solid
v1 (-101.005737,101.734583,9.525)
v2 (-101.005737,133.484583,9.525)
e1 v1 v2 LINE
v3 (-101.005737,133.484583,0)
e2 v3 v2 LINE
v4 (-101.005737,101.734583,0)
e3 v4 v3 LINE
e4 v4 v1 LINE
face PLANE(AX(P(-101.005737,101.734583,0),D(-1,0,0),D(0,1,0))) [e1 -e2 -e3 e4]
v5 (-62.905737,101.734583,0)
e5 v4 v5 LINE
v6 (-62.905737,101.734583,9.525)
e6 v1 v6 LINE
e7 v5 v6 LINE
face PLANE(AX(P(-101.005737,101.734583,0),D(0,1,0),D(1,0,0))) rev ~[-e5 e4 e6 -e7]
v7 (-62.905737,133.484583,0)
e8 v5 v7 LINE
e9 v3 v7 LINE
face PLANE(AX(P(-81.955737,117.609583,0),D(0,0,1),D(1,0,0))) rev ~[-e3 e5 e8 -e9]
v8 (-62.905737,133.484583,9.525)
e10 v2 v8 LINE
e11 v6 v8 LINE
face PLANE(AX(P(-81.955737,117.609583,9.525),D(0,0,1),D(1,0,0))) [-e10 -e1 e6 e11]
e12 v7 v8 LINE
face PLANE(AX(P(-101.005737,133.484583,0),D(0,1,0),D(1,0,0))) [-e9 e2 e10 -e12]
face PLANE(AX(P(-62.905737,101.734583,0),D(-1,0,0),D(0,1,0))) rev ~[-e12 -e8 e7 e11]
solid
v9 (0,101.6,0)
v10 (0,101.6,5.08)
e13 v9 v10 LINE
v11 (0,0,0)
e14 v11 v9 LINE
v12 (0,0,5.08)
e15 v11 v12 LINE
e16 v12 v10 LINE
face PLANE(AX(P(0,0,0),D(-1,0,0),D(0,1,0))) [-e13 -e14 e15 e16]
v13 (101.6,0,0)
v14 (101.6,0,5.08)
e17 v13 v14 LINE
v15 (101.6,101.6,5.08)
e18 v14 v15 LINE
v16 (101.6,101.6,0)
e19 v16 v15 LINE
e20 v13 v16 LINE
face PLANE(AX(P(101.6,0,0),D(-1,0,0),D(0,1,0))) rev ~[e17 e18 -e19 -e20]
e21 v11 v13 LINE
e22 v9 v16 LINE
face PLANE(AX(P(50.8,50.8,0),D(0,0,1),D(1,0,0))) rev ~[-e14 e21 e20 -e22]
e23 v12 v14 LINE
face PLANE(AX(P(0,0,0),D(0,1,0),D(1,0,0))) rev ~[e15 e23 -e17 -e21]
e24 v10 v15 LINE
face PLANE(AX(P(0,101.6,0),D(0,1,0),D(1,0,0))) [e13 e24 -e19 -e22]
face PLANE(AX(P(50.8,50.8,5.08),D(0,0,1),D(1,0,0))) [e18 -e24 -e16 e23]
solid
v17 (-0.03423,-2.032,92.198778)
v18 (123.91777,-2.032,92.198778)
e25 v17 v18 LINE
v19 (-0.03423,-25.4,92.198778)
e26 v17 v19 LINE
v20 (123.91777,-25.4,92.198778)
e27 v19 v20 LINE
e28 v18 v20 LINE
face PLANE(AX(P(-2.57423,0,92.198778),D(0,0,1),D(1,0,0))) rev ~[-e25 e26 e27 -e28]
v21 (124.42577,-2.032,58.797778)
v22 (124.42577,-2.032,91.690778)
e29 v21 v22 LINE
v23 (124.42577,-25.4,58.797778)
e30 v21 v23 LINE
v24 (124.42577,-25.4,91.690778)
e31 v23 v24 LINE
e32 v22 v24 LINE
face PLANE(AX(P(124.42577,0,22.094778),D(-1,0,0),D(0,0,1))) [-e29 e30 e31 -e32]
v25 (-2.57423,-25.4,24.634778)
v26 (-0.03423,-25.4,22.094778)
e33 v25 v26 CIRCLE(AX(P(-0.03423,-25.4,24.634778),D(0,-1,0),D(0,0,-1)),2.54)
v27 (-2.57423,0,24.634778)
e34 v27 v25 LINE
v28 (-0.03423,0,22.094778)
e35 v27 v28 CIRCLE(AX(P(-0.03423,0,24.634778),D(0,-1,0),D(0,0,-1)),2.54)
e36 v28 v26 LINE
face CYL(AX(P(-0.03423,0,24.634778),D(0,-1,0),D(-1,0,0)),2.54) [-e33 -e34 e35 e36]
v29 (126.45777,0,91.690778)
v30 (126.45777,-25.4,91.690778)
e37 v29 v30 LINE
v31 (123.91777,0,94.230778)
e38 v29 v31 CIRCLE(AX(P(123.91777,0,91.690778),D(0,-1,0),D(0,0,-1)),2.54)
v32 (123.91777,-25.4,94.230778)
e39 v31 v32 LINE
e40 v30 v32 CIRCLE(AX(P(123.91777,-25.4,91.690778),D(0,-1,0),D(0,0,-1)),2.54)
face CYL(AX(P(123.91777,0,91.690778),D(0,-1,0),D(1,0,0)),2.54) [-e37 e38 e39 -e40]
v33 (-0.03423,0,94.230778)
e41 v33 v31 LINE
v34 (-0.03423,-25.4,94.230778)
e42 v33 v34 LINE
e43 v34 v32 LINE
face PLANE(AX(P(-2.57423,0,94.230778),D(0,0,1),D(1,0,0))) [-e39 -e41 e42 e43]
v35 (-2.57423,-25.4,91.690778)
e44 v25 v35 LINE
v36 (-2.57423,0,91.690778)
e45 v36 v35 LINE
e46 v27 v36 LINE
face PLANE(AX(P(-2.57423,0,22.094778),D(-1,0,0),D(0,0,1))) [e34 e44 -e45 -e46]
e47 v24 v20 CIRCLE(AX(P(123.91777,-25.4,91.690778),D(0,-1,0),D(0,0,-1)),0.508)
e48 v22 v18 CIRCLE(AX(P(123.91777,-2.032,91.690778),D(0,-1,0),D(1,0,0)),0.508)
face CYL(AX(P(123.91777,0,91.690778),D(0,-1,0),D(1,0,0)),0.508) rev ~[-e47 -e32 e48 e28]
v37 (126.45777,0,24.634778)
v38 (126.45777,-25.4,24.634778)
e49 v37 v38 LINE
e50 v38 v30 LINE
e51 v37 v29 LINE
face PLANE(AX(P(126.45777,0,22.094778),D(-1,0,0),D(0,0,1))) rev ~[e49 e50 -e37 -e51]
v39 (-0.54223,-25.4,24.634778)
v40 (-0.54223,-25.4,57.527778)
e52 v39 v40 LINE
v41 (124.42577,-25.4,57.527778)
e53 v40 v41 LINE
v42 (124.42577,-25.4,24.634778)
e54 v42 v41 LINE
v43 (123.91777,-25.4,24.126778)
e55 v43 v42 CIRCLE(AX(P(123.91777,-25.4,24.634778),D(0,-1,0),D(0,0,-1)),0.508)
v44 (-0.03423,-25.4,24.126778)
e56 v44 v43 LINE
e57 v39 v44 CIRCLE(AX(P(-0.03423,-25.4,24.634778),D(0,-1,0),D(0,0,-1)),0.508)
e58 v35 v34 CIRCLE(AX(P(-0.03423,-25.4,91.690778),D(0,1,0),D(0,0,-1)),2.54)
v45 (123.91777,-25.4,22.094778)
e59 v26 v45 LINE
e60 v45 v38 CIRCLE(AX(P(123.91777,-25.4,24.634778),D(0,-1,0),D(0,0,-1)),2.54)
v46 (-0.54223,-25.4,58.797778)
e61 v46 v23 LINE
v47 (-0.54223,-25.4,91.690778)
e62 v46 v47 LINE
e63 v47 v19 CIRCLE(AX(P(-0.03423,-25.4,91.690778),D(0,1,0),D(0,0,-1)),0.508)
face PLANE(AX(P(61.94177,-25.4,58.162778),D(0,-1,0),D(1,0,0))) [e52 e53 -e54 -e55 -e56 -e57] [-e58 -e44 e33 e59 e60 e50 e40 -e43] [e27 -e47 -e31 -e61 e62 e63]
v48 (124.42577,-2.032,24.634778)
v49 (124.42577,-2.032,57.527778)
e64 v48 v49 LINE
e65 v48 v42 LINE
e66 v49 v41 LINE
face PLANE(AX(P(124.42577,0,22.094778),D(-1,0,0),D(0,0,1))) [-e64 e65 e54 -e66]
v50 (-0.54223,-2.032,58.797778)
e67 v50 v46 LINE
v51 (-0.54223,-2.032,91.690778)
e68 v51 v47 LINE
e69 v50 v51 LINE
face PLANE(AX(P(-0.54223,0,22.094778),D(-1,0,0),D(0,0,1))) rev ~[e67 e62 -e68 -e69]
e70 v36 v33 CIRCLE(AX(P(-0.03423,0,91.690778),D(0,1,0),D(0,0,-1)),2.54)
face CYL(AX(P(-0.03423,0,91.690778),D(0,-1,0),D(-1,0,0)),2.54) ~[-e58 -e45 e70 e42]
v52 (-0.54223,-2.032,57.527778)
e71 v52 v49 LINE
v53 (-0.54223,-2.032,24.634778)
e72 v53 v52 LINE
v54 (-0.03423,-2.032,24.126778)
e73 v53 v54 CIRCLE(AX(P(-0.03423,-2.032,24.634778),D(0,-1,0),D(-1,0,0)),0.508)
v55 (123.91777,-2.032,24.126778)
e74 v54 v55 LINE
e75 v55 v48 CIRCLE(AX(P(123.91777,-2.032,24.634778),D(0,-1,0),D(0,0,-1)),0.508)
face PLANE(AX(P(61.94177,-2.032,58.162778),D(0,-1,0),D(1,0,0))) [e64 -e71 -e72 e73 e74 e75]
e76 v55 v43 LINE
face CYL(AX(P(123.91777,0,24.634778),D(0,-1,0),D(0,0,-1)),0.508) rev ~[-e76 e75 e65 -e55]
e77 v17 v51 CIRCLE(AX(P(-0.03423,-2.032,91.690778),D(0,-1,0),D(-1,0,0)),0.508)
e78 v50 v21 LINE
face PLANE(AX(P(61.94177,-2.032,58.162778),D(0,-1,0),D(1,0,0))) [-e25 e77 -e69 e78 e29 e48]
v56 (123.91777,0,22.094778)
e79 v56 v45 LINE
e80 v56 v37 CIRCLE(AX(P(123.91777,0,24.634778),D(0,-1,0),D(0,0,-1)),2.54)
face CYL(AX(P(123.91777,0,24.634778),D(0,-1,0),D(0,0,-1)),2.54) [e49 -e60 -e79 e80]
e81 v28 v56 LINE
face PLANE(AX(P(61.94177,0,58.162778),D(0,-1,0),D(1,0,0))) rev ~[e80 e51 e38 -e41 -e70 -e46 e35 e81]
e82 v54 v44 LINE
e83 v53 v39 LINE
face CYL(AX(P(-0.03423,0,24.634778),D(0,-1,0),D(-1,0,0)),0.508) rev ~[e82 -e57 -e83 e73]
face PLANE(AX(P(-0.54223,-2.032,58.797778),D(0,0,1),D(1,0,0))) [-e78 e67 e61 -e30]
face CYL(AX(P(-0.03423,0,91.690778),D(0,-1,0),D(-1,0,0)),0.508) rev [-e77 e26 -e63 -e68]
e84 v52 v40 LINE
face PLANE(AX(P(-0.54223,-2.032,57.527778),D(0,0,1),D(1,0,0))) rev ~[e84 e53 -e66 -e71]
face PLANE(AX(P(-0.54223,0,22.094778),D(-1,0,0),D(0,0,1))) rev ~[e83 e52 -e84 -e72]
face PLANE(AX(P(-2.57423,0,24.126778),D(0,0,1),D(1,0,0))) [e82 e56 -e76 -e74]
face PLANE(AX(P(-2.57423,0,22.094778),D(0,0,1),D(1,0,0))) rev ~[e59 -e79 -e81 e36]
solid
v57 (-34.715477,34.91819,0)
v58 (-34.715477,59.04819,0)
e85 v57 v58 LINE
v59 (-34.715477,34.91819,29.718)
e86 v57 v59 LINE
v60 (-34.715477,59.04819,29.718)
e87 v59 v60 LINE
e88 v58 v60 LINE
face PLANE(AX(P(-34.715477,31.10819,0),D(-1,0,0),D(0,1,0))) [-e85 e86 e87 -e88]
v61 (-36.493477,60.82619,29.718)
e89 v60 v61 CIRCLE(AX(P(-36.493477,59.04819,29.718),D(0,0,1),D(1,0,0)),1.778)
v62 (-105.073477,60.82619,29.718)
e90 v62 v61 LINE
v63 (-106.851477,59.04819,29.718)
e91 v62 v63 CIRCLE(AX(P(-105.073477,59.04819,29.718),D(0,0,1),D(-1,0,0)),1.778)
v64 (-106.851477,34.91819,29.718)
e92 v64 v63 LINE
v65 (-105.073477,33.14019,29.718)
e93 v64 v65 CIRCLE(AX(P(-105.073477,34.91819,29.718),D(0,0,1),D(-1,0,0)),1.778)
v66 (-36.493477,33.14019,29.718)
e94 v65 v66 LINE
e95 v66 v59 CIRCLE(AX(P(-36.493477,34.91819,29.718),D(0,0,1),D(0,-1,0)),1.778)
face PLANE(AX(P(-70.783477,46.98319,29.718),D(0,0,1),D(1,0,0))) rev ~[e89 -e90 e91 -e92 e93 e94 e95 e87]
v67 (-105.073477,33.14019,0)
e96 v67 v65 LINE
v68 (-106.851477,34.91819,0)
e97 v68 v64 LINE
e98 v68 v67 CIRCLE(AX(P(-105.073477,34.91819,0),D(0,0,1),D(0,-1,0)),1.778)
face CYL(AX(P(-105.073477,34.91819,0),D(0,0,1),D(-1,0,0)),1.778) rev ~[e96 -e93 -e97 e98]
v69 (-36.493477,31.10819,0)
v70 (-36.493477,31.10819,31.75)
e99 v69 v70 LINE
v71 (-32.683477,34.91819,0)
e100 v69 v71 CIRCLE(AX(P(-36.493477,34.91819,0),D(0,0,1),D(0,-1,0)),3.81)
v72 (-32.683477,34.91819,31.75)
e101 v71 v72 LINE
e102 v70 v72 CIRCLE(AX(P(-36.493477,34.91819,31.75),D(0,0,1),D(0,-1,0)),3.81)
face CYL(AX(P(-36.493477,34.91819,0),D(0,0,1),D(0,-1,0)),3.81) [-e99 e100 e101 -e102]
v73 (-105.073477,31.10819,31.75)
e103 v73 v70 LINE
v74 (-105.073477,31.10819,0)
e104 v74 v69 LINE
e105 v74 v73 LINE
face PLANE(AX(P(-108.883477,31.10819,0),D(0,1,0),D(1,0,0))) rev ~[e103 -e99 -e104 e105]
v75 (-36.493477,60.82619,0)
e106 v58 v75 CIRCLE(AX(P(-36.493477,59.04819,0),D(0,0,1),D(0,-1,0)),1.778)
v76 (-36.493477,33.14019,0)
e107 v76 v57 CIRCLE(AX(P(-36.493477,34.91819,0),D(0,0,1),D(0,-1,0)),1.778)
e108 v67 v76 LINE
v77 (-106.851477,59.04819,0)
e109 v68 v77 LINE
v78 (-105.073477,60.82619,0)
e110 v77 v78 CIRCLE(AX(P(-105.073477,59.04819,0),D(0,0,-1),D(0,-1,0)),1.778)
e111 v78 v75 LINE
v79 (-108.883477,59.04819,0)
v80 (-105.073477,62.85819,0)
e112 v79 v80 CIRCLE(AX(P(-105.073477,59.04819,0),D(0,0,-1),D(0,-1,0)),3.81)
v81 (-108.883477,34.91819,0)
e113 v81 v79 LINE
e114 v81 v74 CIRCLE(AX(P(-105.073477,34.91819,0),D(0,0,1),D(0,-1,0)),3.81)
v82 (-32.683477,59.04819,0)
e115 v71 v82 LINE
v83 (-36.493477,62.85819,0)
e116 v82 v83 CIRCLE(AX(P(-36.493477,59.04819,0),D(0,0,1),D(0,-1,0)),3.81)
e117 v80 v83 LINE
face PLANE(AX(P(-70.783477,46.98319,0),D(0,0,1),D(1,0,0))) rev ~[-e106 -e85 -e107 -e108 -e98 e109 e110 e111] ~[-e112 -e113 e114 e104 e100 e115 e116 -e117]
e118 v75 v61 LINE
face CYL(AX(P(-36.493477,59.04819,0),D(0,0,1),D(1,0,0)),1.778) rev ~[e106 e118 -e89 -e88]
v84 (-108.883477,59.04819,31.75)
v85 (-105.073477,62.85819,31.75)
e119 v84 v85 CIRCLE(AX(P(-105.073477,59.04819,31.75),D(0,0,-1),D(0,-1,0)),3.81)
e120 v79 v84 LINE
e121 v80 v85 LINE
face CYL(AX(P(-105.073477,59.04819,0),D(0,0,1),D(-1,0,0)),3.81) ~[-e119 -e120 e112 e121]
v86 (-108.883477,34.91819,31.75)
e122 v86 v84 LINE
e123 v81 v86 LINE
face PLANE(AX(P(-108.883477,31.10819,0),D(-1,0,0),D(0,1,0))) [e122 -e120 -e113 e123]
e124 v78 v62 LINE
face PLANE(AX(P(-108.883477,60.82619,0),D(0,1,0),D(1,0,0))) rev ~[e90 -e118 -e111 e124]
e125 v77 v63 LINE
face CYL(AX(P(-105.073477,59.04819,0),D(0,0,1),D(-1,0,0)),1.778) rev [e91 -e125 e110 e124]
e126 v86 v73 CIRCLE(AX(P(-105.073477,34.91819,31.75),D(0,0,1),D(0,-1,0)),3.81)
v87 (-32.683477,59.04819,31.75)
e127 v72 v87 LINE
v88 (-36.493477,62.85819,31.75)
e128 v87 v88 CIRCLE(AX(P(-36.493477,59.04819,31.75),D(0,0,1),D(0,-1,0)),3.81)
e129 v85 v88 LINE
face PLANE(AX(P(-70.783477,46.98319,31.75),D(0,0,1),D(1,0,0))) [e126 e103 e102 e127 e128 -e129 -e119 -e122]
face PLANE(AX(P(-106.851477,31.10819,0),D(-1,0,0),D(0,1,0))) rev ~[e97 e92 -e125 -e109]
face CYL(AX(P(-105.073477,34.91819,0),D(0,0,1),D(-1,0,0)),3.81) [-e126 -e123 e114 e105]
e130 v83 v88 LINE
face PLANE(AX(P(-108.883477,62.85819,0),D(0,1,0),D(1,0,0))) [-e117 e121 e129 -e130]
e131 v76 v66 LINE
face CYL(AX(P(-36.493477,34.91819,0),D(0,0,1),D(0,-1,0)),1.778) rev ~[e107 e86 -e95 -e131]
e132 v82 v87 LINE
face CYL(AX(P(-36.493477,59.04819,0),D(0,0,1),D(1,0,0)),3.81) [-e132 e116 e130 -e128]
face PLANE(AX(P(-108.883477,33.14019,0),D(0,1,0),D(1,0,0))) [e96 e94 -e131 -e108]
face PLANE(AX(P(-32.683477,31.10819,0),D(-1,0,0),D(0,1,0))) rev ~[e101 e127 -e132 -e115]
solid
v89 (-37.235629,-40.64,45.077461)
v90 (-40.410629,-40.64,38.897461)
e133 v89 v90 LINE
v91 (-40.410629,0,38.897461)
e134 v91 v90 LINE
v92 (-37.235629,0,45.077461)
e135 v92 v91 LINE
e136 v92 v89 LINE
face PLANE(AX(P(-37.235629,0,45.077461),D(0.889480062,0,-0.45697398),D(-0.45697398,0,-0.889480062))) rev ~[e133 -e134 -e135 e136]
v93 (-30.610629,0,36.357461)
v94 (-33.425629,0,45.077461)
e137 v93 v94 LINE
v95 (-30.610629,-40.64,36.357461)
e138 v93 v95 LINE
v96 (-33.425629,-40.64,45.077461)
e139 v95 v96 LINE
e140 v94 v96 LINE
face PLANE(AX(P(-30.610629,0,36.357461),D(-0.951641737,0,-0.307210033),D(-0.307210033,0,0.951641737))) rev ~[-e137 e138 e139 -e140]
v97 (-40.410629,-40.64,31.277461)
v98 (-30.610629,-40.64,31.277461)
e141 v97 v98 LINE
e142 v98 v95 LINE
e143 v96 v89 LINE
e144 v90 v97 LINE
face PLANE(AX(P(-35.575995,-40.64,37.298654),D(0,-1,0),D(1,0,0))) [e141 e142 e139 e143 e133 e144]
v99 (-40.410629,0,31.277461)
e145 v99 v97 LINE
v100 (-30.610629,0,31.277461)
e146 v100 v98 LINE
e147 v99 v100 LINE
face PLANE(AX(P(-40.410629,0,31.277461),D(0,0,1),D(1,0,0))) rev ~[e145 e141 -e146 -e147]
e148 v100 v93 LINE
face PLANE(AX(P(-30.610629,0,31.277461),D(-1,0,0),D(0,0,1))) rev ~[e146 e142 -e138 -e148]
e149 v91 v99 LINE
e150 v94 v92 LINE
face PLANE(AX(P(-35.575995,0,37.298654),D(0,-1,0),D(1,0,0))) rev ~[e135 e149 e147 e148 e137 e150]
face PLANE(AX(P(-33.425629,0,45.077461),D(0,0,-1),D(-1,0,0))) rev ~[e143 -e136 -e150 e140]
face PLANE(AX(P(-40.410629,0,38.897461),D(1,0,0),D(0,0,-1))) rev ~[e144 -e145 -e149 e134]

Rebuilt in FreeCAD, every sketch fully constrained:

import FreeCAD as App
import Part
import Sketcher

V = App.Vector
Q = App.Units.Quantity


def edges_at(feature, points):
    """Names of the edges that pass closest to the given points."""
    edges = feature.Shape.Edges
    near = lambda p: min(range(len(edges)), key=lambda i: edges[i].distToShape(Part.Vertex(*p))[0])
    return sorted({f"Edge{near(p) + 1}" for p in points})


def faces_at(feature, points):
    """Names of the faces that lie closest to the given points."""
    faces = feature.Shape.Faces
    near = lambda p: min(range(len(faces)), key=lambda i: faces[i].distToShape(Part.Vertex(*p))[0])
    return sorted({f"Face{near(p) + 1}" for p in points})


def add_polygon(sketch, points):
    """Adds a closed chain of lines whose ends are joined by coincident constraints."""
    first, n = sketch.GeometryCount, len(points)
    for a, b in zip(points, points[1:] + points[:1]):
        sketch.addGeometry(Part.LineSegment(App.Vector(*a, 0), App.Vector(*b, 0)), False)
    for i in range(n):
        sketch.addConstraint(Sketcher.Constraint("Coincident", first + i, 2, first + (i + 1) % n, 1))

doc = App.newDocument("Part")
body = doc.addObject("PartDesign::Body", "Body")

# Sketch on XY plane
sketch1 = body.newObject("Sketcher::SketchObject", "Sketch")
sketch1.AttachmentSupport = (doc.getObject("XY_Plane"), [""])
sketch1.MapMode = "FlatFace"
add_polygon(sketch1, [(0, 102), (0, 0), (102, 0), (102, 102)])  # lines 0-3
sketch1.addConstraint([
    Sketcher.Constraint("Vertical", 0),
    Sketcher.Constraint("Horizontal", 1),
    Sketcher.Constraint("Vertical", 2),
    Sketcher.Constraint("Horizontal", 3),
    Sketcher.Constraint("Coincident", 0, 2, -1, 1),
    Sketcher.Constraint("Equal", 3, 0),
    Sketcher.Constraint("DistanceX", 1, 1, 1, 2, Q("4 in")),
])
pad1 = body.newObject("PartDesign::Pad", "Pad")
pad1.Profile = sketch1
pad1.Length = Q("0.2 in")
body2 = doc.addObject("PartDesign::Body", "Body001")

# Sketch on XZ plane
sketch2 = body2.newObject("Sketcher::SketchObject", "Sketch001")
sketch2.AttachmentSupport = (doc.getObject("XZ_Plane001"), [""])
sketch2.MapMode = "FlatFace"
add_polygon(sketch2, [(-40.4, 38.9), (-40.4, 31.3), (-30.6, 31.3), (-30.6, 36.4), (-33.4, 45.1), (-37.2, 45.1)])  # lines 0-5
sketch2.addConstraint([
    Sketcher.Constraint("Vertical", 0),
    Sketcher.Constraint("Horizontal", 1),
    Sketcher.Constraint("Vertical", 2),
    Sketcher.Constraint("Horizontal", 4),
    Sketcher.Constraint("DistanceY", 0, 2, 0, 1, Q("0.3 in")),
    Sketcher.Constraint("DistanceY", 2, 1, 2, 2, Q("0.2 in")),
    Sketcher.Constraint("DistanceX", 4, 2, 4, 1, Q("0.15 in")),
    Sketcher.Constraint("DistanceX", 0, 2, 3, 2, Q("0.275 in")),
    Sketcher.Constraint("DistanceX", 1, 1, 1, 2, Q("9.8 mm")),
    Sketcher.Constraint("DistanceY", 2, 2, 3, 2, Q("8.72 mm")),
    Sketcher.Constraint("DistanceX", 0, 2, -1, 1, Q("40.410629 mm")),
    Sketcher.Constraint("DistanceY", -1, 1, 0, 2, Q("31.277461 mm")),
])
pad2 = body2.newObject("PartDesign::Pad", "Pad001")
pad2.Profile = sketch2
pad2.Length = Q("1.6 in")
body3 = doc.addObject("PartDesign::Body", "Body002")

# Sketch on XZ plane
sketch3 = body3.newObject("Sketcher::SketchObject", "Sketch002")
sketch3.AttachmentSupport = (doc.getObject("XZ_Plane002"), [""])
sketch3.MapMode = "FlatFace"
add_polygon(sketch3, [(-3, 94), (-3, 22), (126, 22), (126, 94)])  # lines 0-3
sketch3.addConstraint([
    Sketcher.Constraint("Vertical", 0),
    Sketcher.Constraint("Horizontal", 1),
    Sketcher.Constraint("Vertical", 2),
    Sketcher.Constraint("Horizontal", 3),
    Sketcher.Constraint("DistanceX", 1, 1, 1, 2, Q("5.08 in")),
    Sketcher.Constraint("DistanceY", 0, 2, 0, 1, Q("2.84 in")),
    Sketcher.Constraint("DistanceX", 0, 2, -1, 1, Q("2.57423 mm")),
    Sketcher.Constraint("DistanceY", -1, 1, 0, 2, Q("22.094778 mm")),
])
pad3 = body3.newObject("PartDesign::Pad", "Pad002")
pad3.Profile = sketch3
pad3.Length = Q("1 in")
doc.recompute()

fillet = body3.newObject("PartDesign::Fillet", "Fillet")
fillet.Base = (pad3, edges_at(pad3, [
    (-2.574, -12.7, 22.095),
    (-2.574, -12.7, 94.231),
    (126.458, -12.7, 22.095),
    (126.458, -12.7, 94.231),
]))
fillet.Radius = Q("0.1 in")
doc.recompute()

thickness = body3.newObject("PartDesign::Thickness", "Thickness")
thickness.Base = (fillet, faces_at(fillet, [(61.942, -25.4, 58.163)]))
thickness.Value = Q("0.08 in")
thickness.Reversed = True
thickness.Join = "Arc"

# Sketch on XZ plane
sketch4 = body3.newObject("Sketcher::SketchObject", "Sketch003")
sketch4.AttachmentSupport = (doc.getObject("XZ_Plane002"), [""])
sketch4.MapMode = "FlatFace"
sketch4.AttachmentOffset = App.Placement(V(0, 0, 0.08 * 25.4), App.Rotation())
add_polygon(sketch4, [(-0.5, 58.8), (-0.5, 57.5), (124.4, 57.5), (124.4, 58.8)])  # lines 0-3
sketch4.addConstraint([
    Sketcher.Constraint("Vertical", 0),
    Sketcher.Constraint("Horizontal", 1),
    Sketcher.Constraint("Vertical", 2),
    Sketcher.Constraint("Horizontal", 3),
    Sketcher.Constraint("DistanceX", 1, 1, 1, 2, Q("4.92 in")),
    Sketcher.Constraint("DistanceY", 0, 2, 0, 1, Q("0.05 in")),
    Sketcher.Constraint("DistanceX", 0, 2, -1, 1, Q("0.54223 mm")),
    Sketcher.Constraint("DistanceY", -1, 1, 0, 2, Q("57.527778 mm")),
])
pad4 = body3.newObject("PartDesign::Pad", "Pad003")
pad4.Profile = sketch4
pad4.Length = Q("0.92 in")
body4 = doc.addObject("PartDesign::Body", "Body003")

# Sketch on XY plane
sketch5 = body4.newObject("Sketcher::SketchObject", "Sketch004")
sketch5.AttachmentSupport = (doc.getObject("XY_Plane003"), [""])
sketch5.MapMode = "FlatFace"
add_polygon(sketch5, [(-109, 63), (-109, 31), (-33, 31), (-33, 63)])  # lines 0-3
sketch5.addConstraint([
    Sketcher.Constraint("Vertical", 0),
    Sketcher.Constraint("Horizontal", 1),
    Sketcher.Constraint("Vertical", 2),
    Sketcher.Constraint("Horizontal", 3),
    Sketcher.Constraint("DistanceX", 1, 1, 1, 2, Q("3 in")),
    Sketcher.Constraint("DistanceY", 0, 2, 0, 1, Q("1.25 in")),
    Sketcher.Constraint("DistanceY", -1, 1, 0, 2, Q("31.10819 mm")),
    Sketcher.Constraint("DistanceX", 0, 2, -1, 1, Q("108.883477 mm")),
])
pad5 = body4.newObject("PartDesign::Pad", "Pad004")
pad5.Profile = sketch5
pad5.Length = Q("1.25 in")
doc.recompute()

fillet2 = body4.newObject("PartDesign::Fillet", "Fillet001")
fillet2.Base = (pad5, edges_at(pad5, [
    (-108.883, 31.108, 15.875),
    (-108.883, 62.858, 15.875),
    (-32.683, 62.858, 15.875),
    (-32.683, 31.108, 15.875),
]))
fillet2.Radius = Q("0.15 in")
doc.recompute()

thickness2 = body4.newObject("PartDesign::Thickness", "Thickness001")
thickness2.Base = (fillet2, faces_at(fillet2, [(-70.783, 46.983, 0)]))
thickness2.Value = Q("0.08 in")
thickness2.Reversed = True
thickness2.Join = "Arc"
body5 = doc.addObject("PartDesign::Body", "Body004")

# Sketch on XY plane
sketch6 = body5.newObject("Sketcher::SketchObject", "Sketch005")
sketch6.AttachmentSupport = (doc.getObject("XY_Plane004"), [""])
sketch6.MapMode = "FlatFace"
add_polygon(sketch6, [(-101, 133), (-101, 102), (-63, 102), (-63, 133)])  # lines 0-3
sketch6.addConstraint([
    Sketcher.Constraint("Vertical", 0),
    Sketcher.Constraint("Horizontal", 1),
    Sketcher.Constraint("Vertical", 2),
    Sketcher.Constraint("Horizontal", 3),
    Sketcher.Constraint("DistanceX", 1, 1, 1, 2, Q("1.5 in")),
    Sketcher.Constraint("DistanceY", 0, 2, 0, 1, Q("1.25 in")),
    Sketcher.Constraint("DistanceX", 0, 2, -1, 1, Q("101.005737 mm")),
    Sketcher.Constraint("DistanceY", -1, 1, 0, 2, Q("101.734583 mm")),
])
pad6 = body5.newObject("PartDesign::Pad", "Pad005")
pad6.Profile = sketch6
pad6.Length = Q("0.375 in")

doc.recompute()
